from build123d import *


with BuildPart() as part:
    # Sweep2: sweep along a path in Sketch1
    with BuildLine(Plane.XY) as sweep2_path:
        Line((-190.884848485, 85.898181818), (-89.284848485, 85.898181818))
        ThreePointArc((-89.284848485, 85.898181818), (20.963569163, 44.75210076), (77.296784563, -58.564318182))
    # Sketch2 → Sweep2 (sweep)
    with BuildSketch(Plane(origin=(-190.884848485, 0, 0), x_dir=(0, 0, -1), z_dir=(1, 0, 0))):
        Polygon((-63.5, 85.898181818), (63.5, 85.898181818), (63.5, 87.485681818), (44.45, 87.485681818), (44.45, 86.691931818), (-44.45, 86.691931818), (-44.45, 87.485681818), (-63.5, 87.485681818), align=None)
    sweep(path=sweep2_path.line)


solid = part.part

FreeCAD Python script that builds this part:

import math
import FreeCAD as App
import Part
import Sketcher
Q = App.Units.Quantity

doc = App.newDocument("Part")
body = doc.addObject("PartDesign::Body", "Body")

# Sketch on YZ plane
sketch1 = body.newObject("Sketcher::SketchObject", "Sketch")
sketch1.AttachmentSupport = (doc.getObject("YZ_Plane"), [""])
sketch1.MapMode = "FlatFace"
sketch1.AttachmentOffset = App.Placement(App.Vector(0, 0, -190.884848), App.Rotation())
sketch1.addGeometry(Part.LineSegment(App.Vector(85.9, 63.5, 0), App.Vector(85.9, -63.5, 0)), False)
sketch1.addGeometry(Part.LineSegment(App.Vector(85.9, -63.5, 0), App.Vector(87.5, -63.5, 0)), False)
sketch1.addGeometry(Part.LineSegment(App.Vector(87.5, -63.5, 0), App.Vector(87.5, -44.5, 0)), False)
sketch1.addGeometry(Part.LineSegment(App.Vector(87.5, -44.5, 0), App.Vector(86.7, -44.5, 0)), False)
sketch1.addGeometry(Part.LineSegment(App.Vector(86.7, -44.5, 0), App.Vector(86.7, 44.5, 0)), False)
sketch1.addGeometry(Part.LineSegment(App.Vector(86.7, 44.5, 0), App.Vector(87.5, 44.5, 0)), False)
sketch1.addGeometry(Part.LineSegment(App.Vector(87.5, 44.5, 0), App.Vector(87.5, 63.5, 0)), False)
sketch1.addGeometry(Part.LineSegment(App.Vector(87.5, 63.5, 0), App.Vector(85.9, 63.5, 0)), False)
sketch1.addConstraint(Sketcher.Constraint("Coincident", 0, 2, 1, 1))
sketch1.addConstraint(Sketcher.Constraint("Coincident", 1, 2, 2, 1))
sketch1.addConstraint(Sketcher.Constraint("Coincident", 2, 2, 3, 1))
sketch1.addConstraint(Sketcher.Constraint("Coincident", 3, 2, 4, 1))
sketch1.addConstraint(Sketcher.Constraint("Coincident", 4, 2, 5, 1))
sketch1.addConstraint(Sketcher.Constraint("Coincident", 5, 2, 6, 1))
sketch1.addConstraint(Sketcher.Constraint("Coincident", 6, 2, 7, 1))
sketch1.addConstraint(Sketcher.Constraint("Coincident", 7, 2, 0, 1))
sketch1.addConstraint(Sketcher.Constraint("Vertical", 0))
sketch1.addConstraint(Sketcher.Constraint("Horizontal", 1))
sketch1.addConstraint(Sketcher.Constraint("Vertical", 2))
sketch1.addConstraint(Sketcher.Constraint("Horizontal", 3))
sketch1.addConstraint(Sketcher.Constraint("Vertical", 4))
sketch1.addConstraint(Sketcher.Constraint("Horizontal", 5))
sketch1.addConstraint(Sketcher.Constraint("Vertical", 6))
sketch1.addConstraint(Sketcher.Constraint("Horizontal", 7))
sketch1.addConstraint(Sketcher.Constraint("Symmetric", 2, 2, 5, 2, -1))
sketch1.addConstraint(Sketcher.Constraint("Equal", 2, 6))
sketch1.addConstraint(Sketcher.Constraint("DistanceY", 0, 2, 0, 1, Q("5 in")))
sketch1.addConstraint(Sketcher.Constraint("DistanceY", 4, 1, 4, 2, Q("3.5 in")))
sketch1.addConstraint(Sketcher.Constraint("DistanceX", 1, 1, 1, 2, Q("0.0625 in")))
sketch1.addConstraint(Sketcher.Constraint("DistanceX", 3, 2, 3, 1, Q("0.03125 in")))
sketch1.addConstraint(Sketcher.Constraint("DistanceX", -1, 1, 0, 2, 85.898182))

# Sketch on XY plane
sketch2 = body.newObject("Sketcher::SketchObject", "Sketch001")
sketch2.AttachmentSupport = (doc.getObject("XY_Plane"), [""])
sketch2.MapMode = "FlatFace"
sketch2.addGeometry(Part.LineSegment(App.Vector(-191, 86, 0), App.Vector(-89, 86, 0)), False)
sketch2.addGeometry(Part.ArcOfCircle(Part.Circle(App.Vector(-89, -82, 0), App.Vector(0, 0, 1), 168), math.radians(8), math.radians(90)), False)
sketch2.addConstraint(Sketcher.Constraint("Tangent", 0, 2, 1, 2))
sketch2.addConstraint(Sketcher.Constraint("Horizontal", 0))
sketch2.addConstraint(Sketcher.Constraint("DistanceX", 0, 1, 0, 2, Q("4 in")))
sketch2.addConstraint(Sketcher.Constraint("Radius", 1, Q("6.625 in")))
sketch2.addConstraint(Sketcher.Constraint("DistanceY", 1, 3, 1, 1, Q("0.9375 in")))
sketch2.addConstraint(Sketcher.Constraint("DistanceX", 1, 3, -1, 1, 89.284848))
sketch2.addConstraint(Sketcher.Constraint("DistanceY", 1, 3, -1, 1, 82.376818))
doc.recompute()

additivepipe = body.newObject("PartDesign::AdditivePipe", "AdditivePipe")
additivepipe.Profile = sketch1
additivepipe.Spine = (sketch2, ["Edge1", "Edge2"])

doc.recompute()
